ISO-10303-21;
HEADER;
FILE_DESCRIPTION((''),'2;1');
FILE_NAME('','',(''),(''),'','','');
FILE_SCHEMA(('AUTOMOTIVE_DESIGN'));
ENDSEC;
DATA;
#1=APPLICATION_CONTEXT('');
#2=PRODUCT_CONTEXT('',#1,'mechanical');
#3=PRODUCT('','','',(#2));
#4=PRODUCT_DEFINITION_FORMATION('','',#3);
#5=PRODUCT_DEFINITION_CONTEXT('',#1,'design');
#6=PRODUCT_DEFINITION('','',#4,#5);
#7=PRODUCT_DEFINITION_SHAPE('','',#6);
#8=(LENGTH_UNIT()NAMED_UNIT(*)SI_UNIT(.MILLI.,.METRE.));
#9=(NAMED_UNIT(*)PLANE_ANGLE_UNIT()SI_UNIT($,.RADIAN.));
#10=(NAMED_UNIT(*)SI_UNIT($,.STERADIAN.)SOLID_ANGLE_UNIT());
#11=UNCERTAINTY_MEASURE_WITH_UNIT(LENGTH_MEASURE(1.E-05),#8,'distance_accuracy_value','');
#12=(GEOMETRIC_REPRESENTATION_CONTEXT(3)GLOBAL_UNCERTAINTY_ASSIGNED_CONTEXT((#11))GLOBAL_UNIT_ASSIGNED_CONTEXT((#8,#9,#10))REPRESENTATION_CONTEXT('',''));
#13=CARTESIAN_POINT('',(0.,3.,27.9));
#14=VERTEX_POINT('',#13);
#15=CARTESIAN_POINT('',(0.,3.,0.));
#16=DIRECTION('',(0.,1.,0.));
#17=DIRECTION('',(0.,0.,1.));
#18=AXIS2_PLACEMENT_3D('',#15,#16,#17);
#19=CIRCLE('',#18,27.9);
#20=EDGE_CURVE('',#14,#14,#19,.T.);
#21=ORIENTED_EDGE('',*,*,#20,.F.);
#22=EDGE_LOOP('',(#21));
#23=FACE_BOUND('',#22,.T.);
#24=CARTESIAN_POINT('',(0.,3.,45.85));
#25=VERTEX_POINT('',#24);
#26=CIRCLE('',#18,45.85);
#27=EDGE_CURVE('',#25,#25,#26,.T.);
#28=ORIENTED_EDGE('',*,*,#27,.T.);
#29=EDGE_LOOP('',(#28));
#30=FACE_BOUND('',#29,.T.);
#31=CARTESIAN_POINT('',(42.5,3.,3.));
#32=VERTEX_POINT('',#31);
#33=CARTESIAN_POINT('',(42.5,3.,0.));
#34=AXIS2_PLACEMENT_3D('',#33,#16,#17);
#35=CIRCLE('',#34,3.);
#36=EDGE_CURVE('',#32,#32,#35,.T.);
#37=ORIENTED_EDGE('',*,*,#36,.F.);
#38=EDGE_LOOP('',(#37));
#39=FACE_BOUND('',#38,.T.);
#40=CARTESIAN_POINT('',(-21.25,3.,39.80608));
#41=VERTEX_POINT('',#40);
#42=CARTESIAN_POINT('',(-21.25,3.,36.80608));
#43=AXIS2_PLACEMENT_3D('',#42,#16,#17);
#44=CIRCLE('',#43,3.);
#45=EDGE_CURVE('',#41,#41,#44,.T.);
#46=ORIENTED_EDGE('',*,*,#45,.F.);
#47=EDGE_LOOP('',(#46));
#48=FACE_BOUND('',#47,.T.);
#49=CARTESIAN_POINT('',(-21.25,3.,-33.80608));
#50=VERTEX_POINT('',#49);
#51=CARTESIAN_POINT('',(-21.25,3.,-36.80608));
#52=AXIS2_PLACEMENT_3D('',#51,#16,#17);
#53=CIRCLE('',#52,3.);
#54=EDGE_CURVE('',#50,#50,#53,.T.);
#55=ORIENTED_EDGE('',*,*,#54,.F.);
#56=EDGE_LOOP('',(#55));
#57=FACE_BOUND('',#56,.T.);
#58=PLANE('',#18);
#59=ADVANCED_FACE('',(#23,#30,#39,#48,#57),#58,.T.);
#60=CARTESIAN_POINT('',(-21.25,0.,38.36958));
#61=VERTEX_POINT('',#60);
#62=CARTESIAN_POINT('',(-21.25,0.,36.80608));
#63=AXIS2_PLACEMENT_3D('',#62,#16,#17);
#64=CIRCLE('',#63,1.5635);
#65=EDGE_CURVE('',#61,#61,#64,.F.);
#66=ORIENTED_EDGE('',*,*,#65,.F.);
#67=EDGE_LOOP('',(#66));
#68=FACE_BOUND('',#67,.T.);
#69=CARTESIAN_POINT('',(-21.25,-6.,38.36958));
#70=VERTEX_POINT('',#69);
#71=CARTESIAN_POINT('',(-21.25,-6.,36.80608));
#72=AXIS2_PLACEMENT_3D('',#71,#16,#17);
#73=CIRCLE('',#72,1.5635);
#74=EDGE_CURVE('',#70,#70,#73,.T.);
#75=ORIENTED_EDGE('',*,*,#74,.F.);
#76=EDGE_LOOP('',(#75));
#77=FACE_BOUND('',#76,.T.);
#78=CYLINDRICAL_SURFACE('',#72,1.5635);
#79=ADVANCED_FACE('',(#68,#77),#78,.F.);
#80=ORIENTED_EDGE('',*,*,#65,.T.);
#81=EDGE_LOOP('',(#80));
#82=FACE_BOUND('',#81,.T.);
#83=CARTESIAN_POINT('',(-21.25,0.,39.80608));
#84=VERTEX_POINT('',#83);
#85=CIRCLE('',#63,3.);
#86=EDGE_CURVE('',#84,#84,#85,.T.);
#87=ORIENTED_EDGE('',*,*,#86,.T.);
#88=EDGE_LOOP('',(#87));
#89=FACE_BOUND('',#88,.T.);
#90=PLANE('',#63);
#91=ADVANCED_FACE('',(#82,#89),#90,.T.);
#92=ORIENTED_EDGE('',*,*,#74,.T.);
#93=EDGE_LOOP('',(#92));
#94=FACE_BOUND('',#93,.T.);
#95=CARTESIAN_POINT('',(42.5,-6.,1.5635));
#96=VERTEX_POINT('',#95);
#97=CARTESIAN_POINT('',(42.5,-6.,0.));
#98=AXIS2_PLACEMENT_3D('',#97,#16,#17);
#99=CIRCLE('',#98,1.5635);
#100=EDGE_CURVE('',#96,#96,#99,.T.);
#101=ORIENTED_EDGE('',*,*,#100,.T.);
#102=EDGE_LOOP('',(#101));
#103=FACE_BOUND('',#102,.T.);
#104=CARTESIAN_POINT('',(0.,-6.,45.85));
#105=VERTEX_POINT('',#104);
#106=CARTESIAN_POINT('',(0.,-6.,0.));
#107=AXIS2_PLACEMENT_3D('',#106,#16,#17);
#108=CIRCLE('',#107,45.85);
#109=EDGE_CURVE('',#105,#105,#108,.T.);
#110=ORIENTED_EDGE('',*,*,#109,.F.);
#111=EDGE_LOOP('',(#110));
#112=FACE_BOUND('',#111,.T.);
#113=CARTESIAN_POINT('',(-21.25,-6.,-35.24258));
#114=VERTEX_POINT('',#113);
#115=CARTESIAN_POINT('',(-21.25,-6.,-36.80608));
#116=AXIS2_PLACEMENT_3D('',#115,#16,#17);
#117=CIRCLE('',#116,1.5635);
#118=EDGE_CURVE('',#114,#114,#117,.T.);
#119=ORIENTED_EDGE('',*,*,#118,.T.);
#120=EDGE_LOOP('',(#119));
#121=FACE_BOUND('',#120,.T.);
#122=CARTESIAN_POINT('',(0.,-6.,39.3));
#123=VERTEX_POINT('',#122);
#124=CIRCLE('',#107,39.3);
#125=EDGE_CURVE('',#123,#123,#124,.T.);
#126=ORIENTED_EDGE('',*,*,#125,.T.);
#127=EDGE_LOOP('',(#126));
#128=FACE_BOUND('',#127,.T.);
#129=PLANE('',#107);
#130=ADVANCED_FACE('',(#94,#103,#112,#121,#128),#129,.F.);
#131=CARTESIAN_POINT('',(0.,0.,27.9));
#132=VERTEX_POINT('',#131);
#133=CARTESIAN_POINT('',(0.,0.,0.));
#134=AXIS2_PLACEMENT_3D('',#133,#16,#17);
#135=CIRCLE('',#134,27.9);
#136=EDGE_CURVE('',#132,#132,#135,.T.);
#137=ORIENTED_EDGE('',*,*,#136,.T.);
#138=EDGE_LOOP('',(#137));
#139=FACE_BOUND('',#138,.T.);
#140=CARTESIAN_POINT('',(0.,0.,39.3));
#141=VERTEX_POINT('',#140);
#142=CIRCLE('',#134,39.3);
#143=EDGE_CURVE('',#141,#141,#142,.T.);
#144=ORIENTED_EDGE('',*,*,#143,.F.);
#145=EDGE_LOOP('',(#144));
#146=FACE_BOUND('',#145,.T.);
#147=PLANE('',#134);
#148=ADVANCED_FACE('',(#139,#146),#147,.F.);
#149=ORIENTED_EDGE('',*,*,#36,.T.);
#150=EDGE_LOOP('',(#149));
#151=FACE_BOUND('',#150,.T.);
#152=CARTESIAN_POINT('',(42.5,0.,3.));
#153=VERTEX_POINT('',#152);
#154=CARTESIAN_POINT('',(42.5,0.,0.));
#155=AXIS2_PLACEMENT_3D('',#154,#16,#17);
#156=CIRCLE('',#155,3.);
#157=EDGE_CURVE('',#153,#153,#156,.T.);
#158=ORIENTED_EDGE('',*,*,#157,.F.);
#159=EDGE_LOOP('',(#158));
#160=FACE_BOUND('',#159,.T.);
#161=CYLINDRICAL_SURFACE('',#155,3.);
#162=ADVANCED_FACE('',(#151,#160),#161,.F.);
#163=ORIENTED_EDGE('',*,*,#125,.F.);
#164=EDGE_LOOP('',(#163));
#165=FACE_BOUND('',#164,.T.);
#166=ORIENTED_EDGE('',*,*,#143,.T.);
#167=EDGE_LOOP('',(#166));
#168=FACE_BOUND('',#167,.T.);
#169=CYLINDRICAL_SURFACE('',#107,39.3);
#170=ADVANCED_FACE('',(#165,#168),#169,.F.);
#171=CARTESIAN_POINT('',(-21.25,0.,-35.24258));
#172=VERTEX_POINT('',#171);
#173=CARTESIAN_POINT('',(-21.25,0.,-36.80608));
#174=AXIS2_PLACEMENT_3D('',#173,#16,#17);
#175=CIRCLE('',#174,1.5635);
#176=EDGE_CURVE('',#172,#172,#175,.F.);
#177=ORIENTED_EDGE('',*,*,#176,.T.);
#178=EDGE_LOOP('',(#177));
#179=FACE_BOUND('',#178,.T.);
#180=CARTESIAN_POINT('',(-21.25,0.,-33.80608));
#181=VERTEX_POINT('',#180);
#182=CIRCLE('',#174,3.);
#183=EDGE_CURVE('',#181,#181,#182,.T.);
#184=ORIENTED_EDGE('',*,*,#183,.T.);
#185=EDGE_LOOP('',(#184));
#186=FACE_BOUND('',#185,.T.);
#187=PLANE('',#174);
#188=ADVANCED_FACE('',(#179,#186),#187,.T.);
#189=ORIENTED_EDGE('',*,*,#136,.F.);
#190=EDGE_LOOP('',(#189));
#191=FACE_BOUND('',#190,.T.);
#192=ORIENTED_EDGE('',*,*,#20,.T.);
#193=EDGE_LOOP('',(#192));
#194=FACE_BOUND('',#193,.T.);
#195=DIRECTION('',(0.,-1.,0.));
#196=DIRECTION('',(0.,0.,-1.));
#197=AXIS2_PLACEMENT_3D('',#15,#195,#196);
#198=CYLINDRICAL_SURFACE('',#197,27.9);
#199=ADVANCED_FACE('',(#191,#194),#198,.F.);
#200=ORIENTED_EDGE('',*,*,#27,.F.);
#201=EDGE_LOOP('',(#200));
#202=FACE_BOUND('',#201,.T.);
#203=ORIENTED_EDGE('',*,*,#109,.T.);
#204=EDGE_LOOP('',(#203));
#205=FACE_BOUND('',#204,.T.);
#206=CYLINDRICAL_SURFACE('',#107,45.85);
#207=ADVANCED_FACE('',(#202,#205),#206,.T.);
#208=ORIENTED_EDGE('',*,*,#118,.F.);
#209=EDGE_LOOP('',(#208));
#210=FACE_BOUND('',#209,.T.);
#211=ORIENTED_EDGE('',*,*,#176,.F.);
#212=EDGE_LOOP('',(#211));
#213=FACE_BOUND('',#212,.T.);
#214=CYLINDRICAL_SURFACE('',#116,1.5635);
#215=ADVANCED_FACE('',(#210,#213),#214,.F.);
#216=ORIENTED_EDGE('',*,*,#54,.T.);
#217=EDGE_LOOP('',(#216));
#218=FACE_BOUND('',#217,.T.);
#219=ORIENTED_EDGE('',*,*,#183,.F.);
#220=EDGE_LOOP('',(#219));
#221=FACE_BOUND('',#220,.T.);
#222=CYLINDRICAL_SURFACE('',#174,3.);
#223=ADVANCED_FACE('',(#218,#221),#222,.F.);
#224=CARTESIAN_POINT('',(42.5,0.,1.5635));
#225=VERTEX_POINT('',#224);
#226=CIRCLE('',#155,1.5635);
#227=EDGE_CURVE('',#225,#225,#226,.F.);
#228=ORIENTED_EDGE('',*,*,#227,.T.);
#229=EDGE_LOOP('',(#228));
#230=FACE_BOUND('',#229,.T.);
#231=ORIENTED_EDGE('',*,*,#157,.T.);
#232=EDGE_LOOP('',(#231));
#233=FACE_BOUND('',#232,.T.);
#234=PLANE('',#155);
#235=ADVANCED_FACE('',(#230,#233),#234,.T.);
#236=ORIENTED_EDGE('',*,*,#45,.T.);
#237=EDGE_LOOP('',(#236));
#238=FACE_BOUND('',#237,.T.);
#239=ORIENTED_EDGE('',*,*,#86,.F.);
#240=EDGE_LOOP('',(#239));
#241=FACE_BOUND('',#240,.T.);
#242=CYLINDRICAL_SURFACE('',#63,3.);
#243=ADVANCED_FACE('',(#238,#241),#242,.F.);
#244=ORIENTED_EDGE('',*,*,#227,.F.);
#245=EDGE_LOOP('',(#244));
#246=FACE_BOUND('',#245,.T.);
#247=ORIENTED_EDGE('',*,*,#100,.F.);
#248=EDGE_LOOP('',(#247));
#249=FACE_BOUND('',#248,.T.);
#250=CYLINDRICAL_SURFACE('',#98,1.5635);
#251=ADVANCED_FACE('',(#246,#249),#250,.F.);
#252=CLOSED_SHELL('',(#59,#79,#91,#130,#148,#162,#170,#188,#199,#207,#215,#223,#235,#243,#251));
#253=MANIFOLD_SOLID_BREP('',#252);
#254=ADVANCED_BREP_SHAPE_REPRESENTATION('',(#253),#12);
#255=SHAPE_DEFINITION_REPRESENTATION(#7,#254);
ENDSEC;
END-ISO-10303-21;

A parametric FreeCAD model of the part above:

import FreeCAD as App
import Part
import Sketcher

doc = App.newDocument("Part")
params = doc.addObject("Spreadsheet::Sheet", "Params")
for row, (alias, value) in enumerate([
    ("sketch1_diameter", "91.7 mm"),
    ("sketch1_diameter2", "78.6 mm"),
    ("pad1_length", "6 mm"),
    ("sketch2_diameter", "91.7 mm"),
    ("sketch2_diameter2", "55.8 mm"),
    ("pad2_length", "3 mm"),
    ("sketch3_diameter", "6 mm"),
    ("pocket1_length", "3 mm"),
], start=1):
    params.set(f"A{row}", alias)
    params.set(f"B{row}", "=" + value)
    params.setAlias(f"B{row}", alias)

body = doc.addObject("PartDesign::Body", "Body")

sketch1 = doc.addObject("Sketcher::SketchObject", "Sketch")
body.addObject(sketch1)
sketch1.AttachmentSupport = (doc.XZ_Plane, [""])
sketch1.MapMode = "FlatFace"
sketch1.addGeometry(Part.Circle(App.Vector(0, 0, 0), App.Vector(0, 0, 1), 45.85), False)
sketch1.addGeometry(Part.Circle(App.Vector(-21.25, -36.80608, 0), App.Vector(0, 0, 1), 1.5635), False)
sketch1.addGeometry(Part.Circle(App.Vector(-21.25, 36.80608, 0), App.Vector(0, 0, 1), 1.5635), False)
sketch1.addGeometry(Part.Circle(App.Vector(0, 0, 0), App.Vector(0, 0, 1), 39.3), False)
sketch1.addGeometry(Part.Circle(App.Vector(42.5, 0, 0), App.Vector(0, 0, 1), 1.5635), False)
sketch1.addConstraint(Sketcher.Constraint("Coincident", 0, 3, -1, 1))
sketch1.addConstraint(Sketcher.Constraint("Coincident", 3, 3, -1, 1))
sketch1.addConstraint(Sketcher.Constraint("Equal", 1, 2))
sketch1.addConstraint(Sketcher.Constraint("Equal", 2, 4))
sketch1.addConstraint(Sketcher.Constraint("Symmetric", 1, 3, 2, 3, -1))
sketch1.addConstraint(Sketcher.Constraint("PointOnObject", 4, 3, -1))
sketch1.addConstraint(Sketcher.Constraint("Diameter", 0, 91.7))
sketch1.addConstraint(Sketcher.Constraint("Diameter", 3, 78.6))
sketch1.addConstraint(Sketcher.Constraint("Diameter", 1, 3.127))
sketch1.addConstraint(Sketcher.Constraint("DistanceX", -1, 1, 4, 3, 42.5))
sketch1.addConstraint(Sketcher.Constraint("DistanceX", 1, 3, -1, 1, 21.25))
sketch1.addConstraint(Sketcher.Constraint("DistanceY", 1, 3, -1, 1, 36.80608))
sketch1.setExpression("Constraints[6]", "Params.sketch1_diameter")
sketch1.setExpression("Constraints[7]", "Params.sketch1_diameter2")
pad1 = doc.addObject("PartDesign::Pad", "Pad")
body.addObject(pad1)
pad1.Profile = sketch1
pad1.setExpression("Length", "Params.pad1_length")

sketch2 = doc.addObject("Sketcher::SketchObject", "Sketch001")
body.addObject(sketch2)
sketch2.AttachmentSupport = (doc.XZ_Plane, [""])
sketch2.MapMode = "FlatFace"
sketch2.AttachmentOffset = App.Placement(App.Vector(0, 0, -3), App.Rotation())
sketch2.addGeometry(Part.Circle(App.Vector(0, 0, 0), App.Vector(0, 0, 1), 45.85), False)
sketch2.addGeometry(Part.Circle(App.Vector(-21.25, -36.80608, 0), App.Vector(0, 0, 1), 1.5635), False)
sketch2.addGeometry(Part.Circle(App.Vector(0, 0, 0), App.Vector(0, 0, 1), 27.9), False)
sketch2.addGeometry(Part.Circle(App.Vector(-21.25, 36.80608, 0), App.Vector(0, 0, 1), 1.5635), False)
sketch2.addGeometry(Part.Circle(App.Vector(42.5, 0, 0), App.Vector(0, 0, 1), 1.5635), False)
sketch2.addConstraint(Sketcher.Constraint("Coincident", 0, 3, -1, 1))
sketch2.addConstraint(Sketcher.Constraint("Coincident", 2, 3, -1, 1))
sketch2.addConstraint(Sketcher.Constraint("Equal", 1, 3))
sketch2.addConstraint(Sketcher.Constraint("Equal", 3, 4))
sketch2.addConstraint(Sketcher.Constraint("Symmetric", 1, 3, 3, 3, -1))
sketch2.addConstraint(Sketcher.Constraint("PointOnObject", 4, 3, -1))
sketch2.addConstraint(Sketcher.Constraint("Diameter", 0, 91.7))
sketch2.addConstraint(Sketcher.Constraint("Diameter", 2, 55.8))
sketch2.addConstraint(Sketcher.Constraint("Diameter", 1, 3.127))
sketch2.addConstraint(Sketcher.Constraint("DistanceX", -1, 1, 4, 3, 42.5))
sketch2.addConstraint(Sketcher.Constraint("DistanceX", 1, 3, -1, 1, 21.25))
sketch2.addConstraint(Sketcher.Constraint("DistanceY", 1, 3, -1, 1, 36.80608))
sketch2.setExpression("Constraints[6]", "Params.sketch2_diameter")
sketch2.setExpression("Constraints[7]", "Params.sketch2_diameter2")
pad2 = doc.addObject("PartDesign::Pad", "Pad001")
body.addObject(pad2)
pad2.Profile = sketch2
pad2.setExpression("Length", "Params.pad2_length")

sketch3 = doc.addObject("Sketcher::SketchObject", "Sketch002")
body.addObject(sketch3)
sketch3.AttachmentSupport = (doc.XZ_Plane, [""])
sketch3.MapMode = "FlatFace"
sketch3.AttachmentOffset = App.Placement(App.Vector(0, 0, -3), App.Rotation())
sketch3.addGeometry(Part.Circle(App.Vector(42.5, 0, 0), App.Vector(0, 0, 1), 3), False)
sketch3.addGeometry(Part.Circle(App.Vector(-21.25, 36.80608, 0), App.Vector(0, 0, 1), 3), False)
sketch3.addGeometry(Part.Circle(App.Vector(-21.25, -36.80608, 0), App.Vector(0, 0, 1), 3), False)
sketch3.addConstraint(Sketcher.Constraint("Equal", 0, 1))
sketch3.addConstraint(Sketcher.Constraint("Equal", 1, 2))
sketch3.addConstraint(Sketcher.Constraint("Symmetric", 1, 3, 2, 3, -1))
sketch3.addConstraint(Sketcher.Constraint("PointOnObject", 0, 3, -1))
sketch3.addConstraint(Sketcher.Constraint("Diameter", 0, 6.0))
sketch3.addConstraint(Sketcher.Constraint("DistanceX", -1, 1, 0, 3, 42.5))
sketch3.addConstraint(Sketcher.Constraint("DistanceX", 1, 3, -1, 1, 21.25))
sketch3.addConstraint(Sketcher.Constraint("DistanceY", -1, 1, 1, 3, 36.80608))
sketch3.setExpression("Constraints[4]", "Params.sketch3_diameter")
pocket1 = doc.addObject("PartDesign::Pocket", "Pocket")
body.addObject(pocket1)
pocket1.Profile = sketch3
pocket1.setExpression("Length", "Params.pocket1_length")
pocket1.Reversed = True

doc.recompute()
